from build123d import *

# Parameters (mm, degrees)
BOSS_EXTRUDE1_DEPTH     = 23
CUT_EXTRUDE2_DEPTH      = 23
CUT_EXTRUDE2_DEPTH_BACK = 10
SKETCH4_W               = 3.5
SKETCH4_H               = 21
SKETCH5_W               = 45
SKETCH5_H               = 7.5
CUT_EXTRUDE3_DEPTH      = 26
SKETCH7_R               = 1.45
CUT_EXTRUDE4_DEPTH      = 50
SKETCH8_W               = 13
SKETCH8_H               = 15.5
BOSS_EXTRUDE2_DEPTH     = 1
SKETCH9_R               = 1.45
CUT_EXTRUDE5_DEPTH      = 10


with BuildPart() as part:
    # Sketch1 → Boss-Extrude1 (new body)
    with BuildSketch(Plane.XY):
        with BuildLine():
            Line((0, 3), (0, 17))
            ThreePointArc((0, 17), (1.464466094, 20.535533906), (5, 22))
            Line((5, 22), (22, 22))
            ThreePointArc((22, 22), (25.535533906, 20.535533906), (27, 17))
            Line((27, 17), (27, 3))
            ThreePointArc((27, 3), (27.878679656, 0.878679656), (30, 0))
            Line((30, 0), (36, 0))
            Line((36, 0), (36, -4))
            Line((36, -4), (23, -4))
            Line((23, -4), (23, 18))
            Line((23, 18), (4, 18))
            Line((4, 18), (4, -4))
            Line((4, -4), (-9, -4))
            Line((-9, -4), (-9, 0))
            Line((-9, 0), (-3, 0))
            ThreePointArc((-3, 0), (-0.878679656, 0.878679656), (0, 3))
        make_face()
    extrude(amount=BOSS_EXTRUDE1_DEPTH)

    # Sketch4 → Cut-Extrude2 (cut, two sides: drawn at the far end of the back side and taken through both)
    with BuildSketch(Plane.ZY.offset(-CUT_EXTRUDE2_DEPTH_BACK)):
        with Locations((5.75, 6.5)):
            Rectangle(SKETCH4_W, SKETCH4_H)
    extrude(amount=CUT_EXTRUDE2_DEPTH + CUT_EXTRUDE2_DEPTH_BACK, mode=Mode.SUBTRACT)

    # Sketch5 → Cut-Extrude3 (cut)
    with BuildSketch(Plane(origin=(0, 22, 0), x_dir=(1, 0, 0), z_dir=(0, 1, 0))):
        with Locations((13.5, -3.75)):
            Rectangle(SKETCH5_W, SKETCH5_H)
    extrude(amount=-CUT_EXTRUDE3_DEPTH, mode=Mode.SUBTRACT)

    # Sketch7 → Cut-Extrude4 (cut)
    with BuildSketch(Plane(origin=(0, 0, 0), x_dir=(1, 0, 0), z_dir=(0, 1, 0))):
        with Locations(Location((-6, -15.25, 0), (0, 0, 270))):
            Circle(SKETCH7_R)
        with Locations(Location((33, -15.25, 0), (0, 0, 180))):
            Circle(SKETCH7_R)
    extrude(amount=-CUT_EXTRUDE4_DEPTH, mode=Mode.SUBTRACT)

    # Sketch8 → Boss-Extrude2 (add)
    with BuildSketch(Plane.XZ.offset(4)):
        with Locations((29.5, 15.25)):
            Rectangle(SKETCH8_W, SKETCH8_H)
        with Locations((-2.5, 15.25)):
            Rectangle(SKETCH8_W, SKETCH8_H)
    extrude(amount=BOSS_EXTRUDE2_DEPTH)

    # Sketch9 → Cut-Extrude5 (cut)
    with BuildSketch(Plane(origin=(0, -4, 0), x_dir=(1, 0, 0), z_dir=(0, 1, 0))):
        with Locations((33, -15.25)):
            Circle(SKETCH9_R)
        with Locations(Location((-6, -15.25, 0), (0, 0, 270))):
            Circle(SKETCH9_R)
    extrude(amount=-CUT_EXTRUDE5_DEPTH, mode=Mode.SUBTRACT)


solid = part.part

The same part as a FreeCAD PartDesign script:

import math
import FreeCAD as App
import Part
import Sketcher
from FreeCAD import Vector

doc = App.newDocument("Part")
body = doc.addObject("PartDesign::Body", "Body")

# Sketch on XY plane
sketch1 = doc.addObject("Sketcher::SketchObject", "Sketch")
body.addObject(sketch1)
sketch1.AttachmentSupport = (doc.XY_Plane, [""])
sketch1.MapMode = "FlatFace"
sketch1.addGeometry(Part.LineSegment(Vector(0, 17, 0), Vector(0, 3, 0)), False)
sketch1.addGeometry(Part.ArcOfCircle(Part.Circle(Vector(-3, 3, 0), Vector(0, 0, 1), 3), math.radians(-90), math.radians(0)), False)
sketch1.addGeometry(Part.LineSegment(Vector(-3, 0, 0), Vector(-9, 0, 0)), False)
sketch1.addGeometry(Part.LineSegment(Vector(-9, 0, 0), Vector(-9, -4, 0)), False)
sketch1.addGeometry(Part.LineSegment(Vector(-9, -4, 0), Vector(4, -4, 0)), False)
sketch1.addGeometry(Part.LineSegment(Vector(4, -4, 0), Vector(4, 18, 0)), False)
sketch1.addGeometry(Part.LineSegment(Vector(4, 18, 0), Vector(23, 18, 0)), False)
sketch1.addGeometry(Part.LineSegment(Vector(23, 18, 0), Vector(23, -4, 0)), False)
sketch1.addGeometry(Part.LineSegment(Vector(23, -4, 0), Vector(36, -4, 0)), False)
sketch1.addGeometry(Part.LineSegment(Vector(36, -4, 0), Vector(36, 0, 0)), False)
sketch1.addGeometry(Part.LineSegment(Vector(36, 0, 0), Vector(30, 0, 0)), False)
sketch1.addGeometry(Part.ArcOfCircle(Part.Circle(Vector(30, 3, 0), Vector(0, 0, 1), 3), math.radians(180), math.radians(270)), False)
sketch1.addGeometry(Part.LineSegment(Vector(27, 3, 0), Vector(27, 17, 0)), False)
sketch1.addGeometry(Part.ArcOfCircle(Part.Circle(Vector(22, 17, 0), Vector(0, 0, 1), 5), math.radians(0), math.radians(90)), False)
sketch1.addGeometry(Part.LineSegment(Vector(22, 22, 0), Vector(5, 22, 0)), False)
sketch1.addGeometry(Part.ArcOfCircle(Part.Circle(Vector(5, 17, 0), Vector(0, 0, 1), 5), math.radians(90), math.radians(180)), False)
sketch1.addConstraint(Sketcher.Constraint("Tangent", 0, 2, 1, 2))
sketch1.addConstraint(Sketcher.Constraint("Tangent", 1, 1, 2, 1))
sketch1.addConstraint(Sketcher.Constraint("Coincident", 2, 2, 3, 1))
sketch1.addConstraint(Sketcher.Constraint("Coincident", 3, 2, 4, 1))
sketch1.addConstraint(Sketcher.Constraint("Coincident", 4, 2, 5, 1))
sketch1.addConstraint(Sketcher.Constraint("Coincident", 5, 2, 6, 1))
sketch1.addConstraint(Sketcher.Constraint("Coincident", 6, 2, 7, 1))
sketch1.addConstraint(Sketcher.Constraint("Coincident", 7, 2, 8, 1))
sketch1.addConstraint(Sketcher.Constraint("Coincident", 8, 2, 9, 1))
sketch1.addConstraint(Sketcher.Constraint("Coincident", 9, 2, 10, 1))
sketch1.addConstraint(Sketcher.Constraint("Tangent", 10, 2, 11, 2))
sketch1.addConstraint(Sketcher.Constraint("Tangent", 11, 1, 12, 1))
sketch1.addConstraint(Sketcher.Constraint("Tangent", 12, 2, 13, 1))
sketch1.addConstraint(Sketcher.Constraint("Tangent", 13, 2, 14, 1))
sketch1.addConstraint(Sketcher.Constraint("Tangent", 14, 2, 15, 1))
sketch1.addConstraint(Sketcher.Constraint("Tangent", 15, 2, 0, 1))
sketch1.addConstraint(Sketcher.Constraint("Vertical", 0))
sketch1.addConstraint(Sketcher.Constraint("Horizontal", 2))
sketch1.addConstraint(Sketcher.Constraint("Vertical", 3))
sketch1.addConstraint(Sketcher.Constraint("Horizontal", 4))
sketch1.addConstraint(Sketcher.Constraint("Vertical", 5))
sketch1.addConstraint(Sketcher.Constraint("Horizontal", 6))
sketch1.addConstraint(Sketcher.Constraint("Vertical", 7))
sketch1.addConstraint(Sketcher.Constraint("Horizontal", 8))
sketch1.addConstraint(Sketcher.Constraint("Vertical", 9))
sketch1.addConstraint(Sketcher.Constraint("Horizontal", 10))
sketch1.addConstraint(Sketcher.Constraint("Vertical", 12))
sketch1.addConstraint(Sketcher.Constraint("Horizontal", 14))
sketch1.addConstraint(Sketcher.Constraint("Equal", 1, 11))
sketch1.addConstraint(Sketcher.Constraint("Equal", 13, 15))
sketch1.addConstraint(Sketcher.Constraint("PointOnObject", 0, 2, -2))
sketch1.addConstraint(Sketcher.Constraint("PointOnObject", 1, 1, -1))
sketch1.addConstraint(Sketcher.Constraint("PointOnObject", 9, 2, -1))
sketch1.addConstraint(Sketcher.Constraint("Horizontal", 4, 2, 7, 2))
sketch1.addConstraint(Sketcher.Constraint("Equal", 4, 8))
sketch1.addConstraint(Sketcher.Constraint("Equal", 2, 10))
sketch1.addConstraint(Sketcher.Constraint("Radius", 1, 3.0))
sketch1.addConstraint(Sketcher.Constraint("Radius", 13, 5.0))
sketch1.addConstraint(Sketcher.Constraint("DistanceX", 2, 2, 2, 1, 6.0))
sketch1.addConstraint(Sketcher.Constraint("DistanceX", 4, 1, 4, 2, 13.0))
sketch1.addConstraint(Sketcher.Constraint("DistanceX", 6, 1, 6, 2, 19.0))
sketch1.addConstraint(Sketcher.Constraint("DistanceY", 0, 2, 0, 1, 14.0))
sketch1.addConstraint(Sketcher.Constraint("DistanceY", 3, 2, 3, 1, 4.0))
sketch1.addConstraint(Sketcher.Constraint("DistanceY", 5, 1, 5, 2, 22.0))
pad1 = doc.addObject("PartDesign::Pad", "Pad")
body.addObject(pad1)
pad1.Profile = sketch1
pad1.Length = 23

# Sketch on YZ plane
sketch2 = doc.addObject("Sketcher::SketchObject", "Sketch001")
body.addObject(sketch2)
sketch2.AttachmentSupport = (doc.YZ_Plane, [""])
sketch2.MapMode = "FlatFace"
sketch2.addGeometry(Part.LineSegment(Vector(17, 4, 0), Vector(-4, 4, 0)), False)
sketch2.addGeometry(Part.LineSegment(Vector(-4, 4, 0), Vector(-4, 7.5, 0)), False)
sketch2.addGeometry(Part.LineSegment(Vector(-4, 7.5, 0), Vector(17, 7.5, 0)), False)
sketch2.addGeometry(Part.LineSegment(Vector(17, 7.5, 0), Vector(17, 4, 0)), False)
sketch2.addConstraint(Sketcher.Constraint("Coincident", 0, 2, 1, 1))
sketch2.addConstraint(Sketcher.Constraint("Coincident", 1, 2, 2, 1))
sketch2.addConstraint(Sketcher.Constraint("Coincident", 2, 2, 3, 1))
sketch2.addConstraint(Sketcher.Constraint("Coincident", 3, 2, 0, 1))
sketch2.addConstraint(Sketcher.Constraint("Horizontal", 0))
sketch2.addConstraint(Sketcher.Constraint("Vertical", 1))
sketch2.addConstraint(Sketcher.Constraint("Horizontal", 2))
sketch2.addConstraint(Sketcher.Constraint("Vertical", 3))
sketch2.addConstraint(Sketcher.Constraint("DistanceX", 0, 2, 0, 1, 21.0))
sketch2.addConstraint(Sketcher.Constraint("DistanceY", 1, 1, 1, 2, 3.5))
sketch2.addConstraint(Sketcher.Constraint("DistanceX", 0, 2, -1, 1, 4.0))
sketch2.addConstraint(Sketcher.Constraint("DistanceY", -1, 1, 0, 2, 4.0))
pocket1 = doc.addObject("PartDesign::Pocket", "Pocket")
body.addObject(pocket1)
pocket1.Profile = sketch2
pocket1.Type = "TwoLengths"
pocket1.Length = 23
pocket1.Length2 = 10

# Sketch on XZ plane
sketch3 = doc.addObject("Sketcher::SketchObject", "Sketch002")
body.addObject(sketch3)
sketch3.AttachmentSupport = (doc.XZ_Plane, [""])
sketch3.MapMode = "FlatFace"
sketch3.AttachmentOffset = App.Placement(Vector(0, 0, -22), App.Rotation())
sketch3.addGeometry(Part.LineSegment(Vector(-9, 0, 0), Vector(-9, 8, 0)), False)
sketch3.addGeometry(Part.LineSegment(Vector(-9, 8, 0), Vector(36, 8, 0)), False)
sketch3.addGeometry(Part.LineSegment(Vector(36, 8, 0), Vector(36, 0, 0)), False)
sketch3.addGeometry(Part.LineSegment(Vector(36, 0, 0), Vector(-9, 0, 0)), False)
sketch3.addConstraint(Sketcher.Constraint("Coincident", 0, 2, 1, 1))
sketch3.addConstraint(Sketcher.Constraint("Coincident", 1, 2, 2, 1))
sketch3.addConstraint(Sketcher.Constraint("Coincident", 2, 2, 3, 1))
sketch3.addConstraint(Sketcher.Constraint("Coincident", 3, 2, 0, 1))
sketch3.addConstraint(Sketcher.Constraint("Vertical", 0))
sketch3.addConstraint(Sketcher.Constraint("Horizontal", 1))
sketch3.addConstraint(Sketcher.Constraint("Vertical", 2))
sketch3.addConstraint(Sketcher.Constraint("Horizontal", 3))
sketch3.addConstraint(Sketcher.Constraint("PointOnObject", 2, 2, -1))
sketch3.addConstraint(Sketcher.Constraint("DistanceX", 1, 1, 1, 2, 45.0))
sketch3.addConstraint(Sketcher.Constraint("DistanceY", 0, 1, 0, 2, 7.5))
sketch3.addConstraint(Sketcher.Constraint("DistanceX", 0, 2, -1, 1, 9.0))
pocket2 = doc.addObject("PartDesign::Pocket", "Pocket001")
body.addObject(pocket2)
pocket2.Profile = sketch3
pocket2.Length = 26
pocket2.Reversed = True

# Sketch on XZ plane
sketch4 = doc.addObject("Sketcher::SketchObject", "Sketch003")
body.addObject(sketch4)
sketch4.AttachmentSupport = (doc.XZ_Plane, [""])
sketch4.MapMode = "FlatFace"
sketch4.addGeometry(Part.Circle(Vector(-6, 15.2, 0), Vector(0, 0, 1), 1.4), False)
sketch4.addGeometry(Part.Circle(Vector(33, 15.2, 0), Vector(0, 0, 1), 1.4), False)
sketch4.addConstraint(Sketcher.Constraint("Equal", 0, 1))
sketch4.addConstraint(Sketcher.Constraint("Horizontal", 0, 3, 1, 3))
sketch4.addConstraint(Sketcher.Constraint("Diameter", 0, 2.9))
sketch4.addConstraint(Sketcher.Constraint("DistanceX", 0, 3, -1, 1, 6.0))
sketch4.addConstraint(Sketcher.Constraint("DistanceX", -1, 1, 1, 3, 33.0))
sketch4.addConstraint(Sketcher.Constraint("DistanceY", -1, 1, 0, 3, 15.25))
pocket3 = doc.addObject("PartDesign::Pocket", "Pocket002")
body.addObject(pocket3)
pocket3.Profile = sketch4
pocket3.Length = 50
pocket3.Reversed = True

# Sketch on XZ plane
sketch5 = doc.addObject("Sketcher::SketchObject", "Sketch004")
body.addObject(sketch5)
sketch5.AttachmentSupport = (doc.XZ_Plane, [""])
sketch5.MapMode = "FlatFace"
sketch5.AttachmentOffset = App.Placement(Vector(0, 0, 4), App.Rotation())
sketch5.addGeometry(Part.LineSegment(Vector(23, 23, 0), Vector(23, 8, 0)), False)
sketch5.addGeometry(Part.LineSegment(Vector(23, 8, 0), Vector(36, 8, 0)), False)
sketch5.addGeometry(Part.LineSegment(Vector(36, 8, 0), Vector(36, 23, 0)), False)
sketch5.addGeometry(Part.LineSegment(Vector(36, 23, 0), Vector(23, 23, 0)), False)
sketch5.addGeometry(Part.LineSegment(Vector(-9, 23, 0), Vector(-9, 8, 0)), False)
sketch5.addGeometry(Part.LineSegment(Vector(-9, 8, 0), Vector(4, 8, 0)), False)
sketch5.addGeometry(Part.LineSegment(Vector(4, 8, 0), Vector(4, 23, 0)), False)
sketch5.addGeometry(Part.LineSegment(Vector(4, 23, 0), Vector(-9, 23, 0)), False)
sketch5.addConstraint(Sketcher.Constraint("Coincident", 0, 2, 1, 1))
sketch5.addConstraint(Sketcher.Constraint("Coincident", 1, 2, 2, 1))
sketch5.addConstraint(Sketcher.Constraint("Coincident", 2, 2, 3, 1))
sketch5.addConstraint(Sketcher.Constraint("Coincident", 3, 2, 0, 1))
sketch5.addConstraint(Sketcher.Constraint("Coincident", 4, 2, 5, 1))
sketch5.addConstraint(Sketcher.Constraint("Coincident", 5, 2, 6, 1))
sketch5.addConstraint(Sketcher.Constraint("Coincident", 6, 2, 7, 1))
sketch5.addConstraint(Sketcher.Constraint("Coincident", 7, 2, 4, 1))
sketch5.addConstraint(Sketcher.Constraint("Vertical", 0))
sketch5.addConstraint(Sketcher.Constraint("Horizontal", 1))
sketch5.addConstraint(Sketcher.Constraint("Vertical", 2))
sketch5.addConstraint(Sketcher.Constraint("Horizontal", 3))
sketch5.addConstraint(Sketcher.Constraint("Vertical", 4))
sketch5.addConstraint(Sketcher.Constraint("Horizontal", 5))
sketch5.addConstraint(Sketcher.Constraint("Vertical", 6))
sketch5.addConstraint(Sketcher.Constraint("Horizontal", 7))
sketch5.addConstraint(Sketcher.Constraint("Horizontal", 1, 2, 4, 2))
sketch5.addConstraint(Sketcher.Constraint("Horizontal", 3, 2, 6, 2))
sketch5.addConstraint(Sketcher.Constraint("Equal", 3, 5))
sketch5.addConstraint(Sketcher.Constraint("DistanceX", 1, 1, 1, 2, 13.0))
sketch5.addConstraint(Sketcher.Constraint("DistanceY", 0, 2, 0, 1, 15.5))
sketch5.addConstraint(Sketcher.Constraint("DistanceX", -1, 1, 0, 2, 23.0))
sketch5.addConstraint(Sketcher.Constraint("DistanceY", -1, 1, 2, 2, 23.0))
sketch5.addConstraint(Sketcher.Constraint("DistanceX", 4, 2, -1, 1, 9.0))
pad2 = doc.addObject("PartDesign::Pad", "Pad001")
body.addObject(pad2)
pad2.Profile = sketch5
pad2.Length = 1

# Sketch on XZ plane
sketch6 = doc.addObject("Sketcher::SketchObject", "Sketch005")
body.addObject(sketch6)
sketch6.AttachmentSupport = (doc.XZ_Plane, [""])
sketch6.MapMode = "FlatFace"
sketch6.AttachmentOffset = App.Placement(Vector(0, 0, 4), App.Rotation())
sketch6.addGeometry(Part.Circle(Vector(33, 15.2, 0), Vector(0, 0, 1), 1.4), False)
sketch6.addGeometry(Part.Circle(Vector(-6, 15.2, 0), Vector(0, 0, 1), 1.4), False)
sketch6.addConstraint(Sketcher.Constraint("Equal", 0, 1))
sketch6.addConstraint(Sketcher.Constraint("Horizontal", 0, 3, 1, 3))
sketch6.addConstraint(Sketcher.Constraint("Diameter", 0, 2.9))
sketch6.addConstraint(Sketcher.Constraint("DistanceX", -1, 1, 0, 3, 33.0))
sketch6.addConstraint(Sketcher.Constraint("DistanceX", 1, 3, -1, 1, 6.0))
sketch6.addConstraint(Sketcher.Constraint("DistanceY", -1, 1, 0, 3, 15.25))
pocket4 = doc.addObject("PartDesign::Pocket", "Pocket003")
body.addObject(pocket4)
pocket4.Profile = sketch6
pocket4.Length = 10
pocket4.Reversed = True

doc.recompute()
